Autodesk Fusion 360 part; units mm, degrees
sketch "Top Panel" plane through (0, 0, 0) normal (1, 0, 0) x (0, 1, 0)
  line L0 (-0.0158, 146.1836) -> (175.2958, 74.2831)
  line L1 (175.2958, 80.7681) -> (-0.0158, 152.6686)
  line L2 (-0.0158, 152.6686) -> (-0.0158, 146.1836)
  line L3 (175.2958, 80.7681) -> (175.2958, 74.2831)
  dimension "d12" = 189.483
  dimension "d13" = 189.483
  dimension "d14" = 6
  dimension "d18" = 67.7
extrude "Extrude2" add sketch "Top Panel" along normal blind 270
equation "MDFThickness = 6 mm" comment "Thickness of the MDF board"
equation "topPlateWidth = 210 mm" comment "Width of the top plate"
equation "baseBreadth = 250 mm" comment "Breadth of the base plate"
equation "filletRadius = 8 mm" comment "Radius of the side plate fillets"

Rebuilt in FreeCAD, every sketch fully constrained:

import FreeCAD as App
import Part
import Sketcher

V = App.Vector
Q = App.Units.Quantity

doc = App.newDocument("Part")
body = doc.addObject("PartDesign::Body", "Body")

sketch1 = body.newObject("Sketcher::SketchObject", "Sketch")
sketch1.AttachmentSupport = (doc.getObject("YZ_Plane"), [""])
sketch1.MapMode = "FlatFace"
sketch1.addGeometry([
    Part.LineSegment(V(0, 153, 0), V(0, 146, 0)),
    Part.LineSegment(V(0, 146, 0), V(175, 74, 0)),
    Part.LineSegment(V(175, 74, 0), V(175, 81, 0)),
    Part.LineSegment(V(175, 81, 0), V(0, 153, 0)),
], False)
sketch1.addConstraint([
    Sketcher.Constraint("Coincident", 0, 2, 1, 1),
    Sketcher.Constraint("Coincident", 1, 2, 2, 1),
    Sketcher.Constraint("Coincident", 2, 2, 3, 1),
    Sketcher.Constraint("Coincident", 3, 2, 0, 1),
    Sketcher.Constraint("Vertical", 0),
    Sketcher.Constraint("Vertical", 2),
    Sketcher.Constraint("Parallel", 1, 3),
    Sketcher.Constraint("Distance", 1, 189.483),
    Sketcher.Constraint("Angle", 1, Q("-22.3 deg")),
    Sketcher.Constraint("DistanceY", 0, 2, 0, 1, 6.485),
    Sketcher.Constraint("DistanceY", -1, 1, 1, 2, 74.283),
    Sketcher.Constraint("DistanceX", 0, 2, -1, 1, 0.0158),
])
pad1 = body.newObject("PartDesign::Pad", "Pad")
pad1.Profile = sketch1
pad1.Length = 270

doc.recompute()
